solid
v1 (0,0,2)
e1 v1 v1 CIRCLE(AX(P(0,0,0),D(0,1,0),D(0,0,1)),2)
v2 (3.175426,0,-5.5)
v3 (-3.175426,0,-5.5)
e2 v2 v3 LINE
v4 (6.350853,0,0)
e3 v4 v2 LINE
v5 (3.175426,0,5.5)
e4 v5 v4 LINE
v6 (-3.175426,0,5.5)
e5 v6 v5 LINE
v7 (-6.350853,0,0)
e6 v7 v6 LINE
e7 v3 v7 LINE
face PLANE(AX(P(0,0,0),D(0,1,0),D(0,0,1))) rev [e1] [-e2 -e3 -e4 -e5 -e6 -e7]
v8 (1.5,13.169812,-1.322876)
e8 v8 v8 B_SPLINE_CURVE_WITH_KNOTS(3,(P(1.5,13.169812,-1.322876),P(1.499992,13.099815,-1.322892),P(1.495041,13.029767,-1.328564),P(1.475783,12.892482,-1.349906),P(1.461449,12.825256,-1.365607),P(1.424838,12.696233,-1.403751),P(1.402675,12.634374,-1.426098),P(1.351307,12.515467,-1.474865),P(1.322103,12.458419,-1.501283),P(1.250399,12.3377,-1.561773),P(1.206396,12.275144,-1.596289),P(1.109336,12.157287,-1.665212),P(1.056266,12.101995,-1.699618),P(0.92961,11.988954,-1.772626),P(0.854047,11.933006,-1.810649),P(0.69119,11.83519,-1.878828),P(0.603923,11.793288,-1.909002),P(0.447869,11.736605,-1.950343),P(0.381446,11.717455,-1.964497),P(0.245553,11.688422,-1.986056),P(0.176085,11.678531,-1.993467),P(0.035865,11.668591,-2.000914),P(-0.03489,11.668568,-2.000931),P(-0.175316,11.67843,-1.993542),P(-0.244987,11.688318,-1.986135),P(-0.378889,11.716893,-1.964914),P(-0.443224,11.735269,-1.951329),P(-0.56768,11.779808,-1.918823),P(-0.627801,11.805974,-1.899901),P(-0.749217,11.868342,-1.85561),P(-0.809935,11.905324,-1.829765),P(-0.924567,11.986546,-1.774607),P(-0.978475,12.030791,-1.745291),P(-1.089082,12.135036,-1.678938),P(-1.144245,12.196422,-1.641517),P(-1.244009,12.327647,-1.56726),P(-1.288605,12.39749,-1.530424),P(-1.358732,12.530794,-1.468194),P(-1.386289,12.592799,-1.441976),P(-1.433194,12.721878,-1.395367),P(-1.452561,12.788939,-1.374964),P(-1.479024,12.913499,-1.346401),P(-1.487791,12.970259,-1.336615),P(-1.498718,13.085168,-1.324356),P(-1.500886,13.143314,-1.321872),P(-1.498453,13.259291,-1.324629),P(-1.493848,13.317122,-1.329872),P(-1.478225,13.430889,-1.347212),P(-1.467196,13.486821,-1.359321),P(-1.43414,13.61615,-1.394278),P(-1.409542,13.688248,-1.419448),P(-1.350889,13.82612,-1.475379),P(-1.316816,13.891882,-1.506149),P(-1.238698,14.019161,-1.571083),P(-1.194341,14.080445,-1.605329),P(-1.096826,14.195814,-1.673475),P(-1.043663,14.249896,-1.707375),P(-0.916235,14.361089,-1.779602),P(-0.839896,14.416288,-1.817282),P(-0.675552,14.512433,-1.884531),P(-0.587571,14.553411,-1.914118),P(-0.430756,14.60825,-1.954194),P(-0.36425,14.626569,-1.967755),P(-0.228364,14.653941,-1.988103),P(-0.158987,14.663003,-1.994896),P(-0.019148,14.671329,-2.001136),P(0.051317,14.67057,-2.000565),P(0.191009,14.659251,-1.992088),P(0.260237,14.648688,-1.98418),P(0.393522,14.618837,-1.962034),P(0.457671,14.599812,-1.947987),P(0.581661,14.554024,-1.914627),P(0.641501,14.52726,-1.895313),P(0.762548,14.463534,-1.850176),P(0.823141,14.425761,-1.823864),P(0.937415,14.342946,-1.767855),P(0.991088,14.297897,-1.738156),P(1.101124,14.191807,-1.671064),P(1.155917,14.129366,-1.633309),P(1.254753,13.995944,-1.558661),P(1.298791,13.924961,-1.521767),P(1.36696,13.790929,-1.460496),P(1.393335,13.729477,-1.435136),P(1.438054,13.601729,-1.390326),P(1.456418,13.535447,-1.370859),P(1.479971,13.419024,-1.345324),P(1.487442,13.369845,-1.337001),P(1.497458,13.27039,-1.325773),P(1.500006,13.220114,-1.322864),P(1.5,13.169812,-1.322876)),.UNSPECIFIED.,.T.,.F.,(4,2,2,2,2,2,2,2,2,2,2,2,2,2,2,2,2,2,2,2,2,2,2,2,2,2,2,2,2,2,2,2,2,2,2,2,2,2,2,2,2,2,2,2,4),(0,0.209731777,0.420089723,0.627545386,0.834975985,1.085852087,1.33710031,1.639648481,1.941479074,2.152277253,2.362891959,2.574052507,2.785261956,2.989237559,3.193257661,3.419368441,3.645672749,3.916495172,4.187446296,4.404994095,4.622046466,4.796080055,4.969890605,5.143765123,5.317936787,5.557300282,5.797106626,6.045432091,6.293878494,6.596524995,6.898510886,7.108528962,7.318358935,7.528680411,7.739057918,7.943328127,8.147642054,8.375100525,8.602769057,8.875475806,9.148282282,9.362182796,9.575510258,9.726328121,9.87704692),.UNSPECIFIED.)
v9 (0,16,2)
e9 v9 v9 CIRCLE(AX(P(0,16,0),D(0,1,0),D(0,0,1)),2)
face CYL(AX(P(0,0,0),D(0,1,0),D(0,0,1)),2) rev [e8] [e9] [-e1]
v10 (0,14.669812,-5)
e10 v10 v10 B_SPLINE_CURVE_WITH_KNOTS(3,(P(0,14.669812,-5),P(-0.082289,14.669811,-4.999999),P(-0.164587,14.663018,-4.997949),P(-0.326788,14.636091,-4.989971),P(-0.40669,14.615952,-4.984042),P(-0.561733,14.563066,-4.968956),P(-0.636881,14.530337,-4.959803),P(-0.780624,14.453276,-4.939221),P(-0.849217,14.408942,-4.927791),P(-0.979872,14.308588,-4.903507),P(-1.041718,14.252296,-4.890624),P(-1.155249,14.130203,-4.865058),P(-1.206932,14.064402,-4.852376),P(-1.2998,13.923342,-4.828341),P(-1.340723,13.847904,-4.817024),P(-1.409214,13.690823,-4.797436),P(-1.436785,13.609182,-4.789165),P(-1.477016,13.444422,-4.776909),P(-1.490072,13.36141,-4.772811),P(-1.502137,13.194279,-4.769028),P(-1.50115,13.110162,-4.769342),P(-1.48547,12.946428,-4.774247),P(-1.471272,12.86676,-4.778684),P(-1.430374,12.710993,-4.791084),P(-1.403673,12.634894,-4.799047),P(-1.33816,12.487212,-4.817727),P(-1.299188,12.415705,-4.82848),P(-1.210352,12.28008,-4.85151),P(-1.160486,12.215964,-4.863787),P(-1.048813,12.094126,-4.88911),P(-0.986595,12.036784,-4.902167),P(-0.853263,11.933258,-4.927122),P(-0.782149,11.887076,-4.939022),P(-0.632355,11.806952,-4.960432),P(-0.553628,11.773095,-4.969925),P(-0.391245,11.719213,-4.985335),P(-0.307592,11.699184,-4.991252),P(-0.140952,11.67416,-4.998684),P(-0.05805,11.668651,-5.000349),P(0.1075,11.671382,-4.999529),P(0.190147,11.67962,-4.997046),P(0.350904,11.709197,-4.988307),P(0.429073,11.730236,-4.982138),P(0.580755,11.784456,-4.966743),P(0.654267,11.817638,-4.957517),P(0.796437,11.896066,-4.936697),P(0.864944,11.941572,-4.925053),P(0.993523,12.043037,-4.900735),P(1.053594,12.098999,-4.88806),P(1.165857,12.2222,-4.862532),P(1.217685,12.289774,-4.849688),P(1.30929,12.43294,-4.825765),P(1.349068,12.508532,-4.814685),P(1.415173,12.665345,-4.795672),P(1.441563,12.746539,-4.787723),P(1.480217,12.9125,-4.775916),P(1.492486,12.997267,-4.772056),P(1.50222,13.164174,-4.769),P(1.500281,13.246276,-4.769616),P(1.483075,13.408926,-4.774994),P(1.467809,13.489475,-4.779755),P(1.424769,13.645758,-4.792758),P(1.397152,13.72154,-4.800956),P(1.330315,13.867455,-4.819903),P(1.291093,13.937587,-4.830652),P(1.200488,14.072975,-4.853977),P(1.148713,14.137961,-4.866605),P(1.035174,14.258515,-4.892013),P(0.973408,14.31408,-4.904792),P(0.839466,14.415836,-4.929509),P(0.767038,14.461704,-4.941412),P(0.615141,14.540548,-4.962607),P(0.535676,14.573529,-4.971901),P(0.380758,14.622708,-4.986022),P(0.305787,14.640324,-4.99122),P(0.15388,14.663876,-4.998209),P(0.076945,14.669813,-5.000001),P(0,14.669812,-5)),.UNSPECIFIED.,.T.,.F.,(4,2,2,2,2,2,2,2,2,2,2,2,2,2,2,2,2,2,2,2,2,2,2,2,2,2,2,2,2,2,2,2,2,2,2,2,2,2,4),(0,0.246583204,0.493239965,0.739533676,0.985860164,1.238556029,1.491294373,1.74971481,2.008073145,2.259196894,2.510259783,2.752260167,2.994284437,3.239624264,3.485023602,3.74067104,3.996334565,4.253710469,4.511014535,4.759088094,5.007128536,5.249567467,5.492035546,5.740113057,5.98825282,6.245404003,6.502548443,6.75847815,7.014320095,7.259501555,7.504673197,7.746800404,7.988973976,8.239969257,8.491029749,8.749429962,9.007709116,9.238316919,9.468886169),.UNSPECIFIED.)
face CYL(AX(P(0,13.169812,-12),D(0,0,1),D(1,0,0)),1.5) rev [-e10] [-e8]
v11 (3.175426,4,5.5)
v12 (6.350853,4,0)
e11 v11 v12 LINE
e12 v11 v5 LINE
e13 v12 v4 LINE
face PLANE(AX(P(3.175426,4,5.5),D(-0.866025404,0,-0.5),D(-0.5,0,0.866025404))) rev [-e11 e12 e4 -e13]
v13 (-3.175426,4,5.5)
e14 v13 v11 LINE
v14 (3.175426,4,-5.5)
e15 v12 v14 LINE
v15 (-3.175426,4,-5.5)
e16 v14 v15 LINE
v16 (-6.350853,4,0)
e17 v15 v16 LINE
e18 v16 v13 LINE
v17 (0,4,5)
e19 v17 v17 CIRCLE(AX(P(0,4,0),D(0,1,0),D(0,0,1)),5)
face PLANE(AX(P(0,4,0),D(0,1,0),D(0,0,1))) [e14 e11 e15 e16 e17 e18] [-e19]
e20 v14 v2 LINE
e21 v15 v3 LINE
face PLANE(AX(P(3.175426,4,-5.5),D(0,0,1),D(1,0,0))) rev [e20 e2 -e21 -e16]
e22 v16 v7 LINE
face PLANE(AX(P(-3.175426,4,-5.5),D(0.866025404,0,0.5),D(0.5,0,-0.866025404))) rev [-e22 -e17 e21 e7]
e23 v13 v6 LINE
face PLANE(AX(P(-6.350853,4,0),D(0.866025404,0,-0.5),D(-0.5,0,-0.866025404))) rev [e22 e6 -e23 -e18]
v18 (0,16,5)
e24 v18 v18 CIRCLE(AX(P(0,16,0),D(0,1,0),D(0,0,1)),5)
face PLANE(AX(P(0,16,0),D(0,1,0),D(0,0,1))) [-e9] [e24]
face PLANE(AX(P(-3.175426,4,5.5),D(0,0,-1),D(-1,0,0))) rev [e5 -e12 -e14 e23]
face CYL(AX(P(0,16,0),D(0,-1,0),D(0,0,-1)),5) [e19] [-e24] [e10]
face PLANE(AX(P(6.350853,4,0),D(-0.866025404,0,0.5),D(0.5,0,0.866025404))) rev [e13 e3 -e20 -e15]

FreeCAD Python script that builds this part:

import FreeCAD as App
import Part
import Sketcher
from FreeCAD import Vector
Q = App.Units.Quantity

doc = App.newDocument("Part")
params = doc.addObject("Spreadsheet::Sheet", "Params")
for row, (alias, value) in enumerate([
    ("pad1_length", "4 mm"),
    ("sketch2_diameter", "10 mm"),
    ("pad2_length", "12 mm"),
    ("sketch3_diameter", "4 mm"),
    ("sketch4_diameter", "3 mm"),
    ("pocket2_length", "12 mm"),
], start=1):
    params.set(f"A{row}", alias)
    params.set(f"B{row}", "=" + value)
    params.setAlias(f"B{row}", alias)

body = doc.addObject("PartDesign::Body", "Body")

# Sketch on XZ plane
sketch1 = doc.addObject("Sketcher::SketchObject", "Sketch")
body.addObject(sketch1)
sketch1.AttachmentSupport = (doc.XZ_Plane, [""])
sketch1.MapMode = "FlatFace"
sketch1.addGeometry(Part.LineSegment(Vector(6, 0, 0), Vector(3, -6, 0)), False)
sketch1.addGeometry(Part.LineSegment(Vector(3, -6, 0), Vector(-3, -6, 0)), False)
sketch1.addGeometry(Part.LineSegment(Vector(-3, -6, 0), Vector(-6, 0, 0)), False)
sketch1.addGeometry(Part.LineSegment(Vector(-6, 0, 0), Vector(-3, 6, 0)), False)
sketch1.addGeometry(Part.LineSegment(Vector(-3, 6, 0), Vector(3, 6, 0)), False)
sketch1.addGeometry(Part.LineSegment(Vector(3, 6, 0), Vector(6, 0, 0)), False)
sketch1.addConstraint(Sketcher.Constraint("Coincident", 0, 2, 1, 1))
sketch1.addConstraint(Sketcher.Constraint("Coincident", 1, 2, 2, 1))
sketch1.addConstraint(Sketcher.Constraint("Coincident", 2, 2, 3, 1))
sketch1.addConstraint(Sketcher.Constraint("Coincident", 3, 2, 4, 1))
sketch1.addConstraint(Sketcher.Constraint("Coincident", 4, 2, 5, 1))
sketch1.addConstraint(Sketcher.Constraint("Coincident", 5, 2, 0, 1))
sketch1.addConstraint(Sketcher.Constraint("Horizontal", 1))
sketch1.addConstraint(Sketcher.Constraint("Horizontal", 4))
sketch1.addConstraint(Sketcher.Constraint("Symmetric", 0, 2, 3, 2, -1, 1))
sketch1.addConstraint(Sketcher.Constraint("Symmetric", 2, 2, 5, 2, -1, 1))
sketch1.addConstraint(Sketcher.Constraint("PointOnObject", 2, 2, -1))
sketch1.addConstraint(Sketcher.Constraint("Parallel", 2, 5))
sketch1.addConstraint(Sketcher.Constraint("Vertical", 1, 2, 3, 2))
sketch1.addConstraint(Sketcher.Constraint("Angle", 0, Q("-120 deg")))
sketch1.addConstraint(Sketcher.Constraint("DistanceY", 1, 2, 3, 2, Q("11 mm")))
sketch1.addConstraint(Sketcher.Constraint("DistanceX", 1, 2, 1, 1, Q("6.350853 mm")))
pad1 = doc.addObject("PartDesign::Pad", "Pad")
body.addObject(pad1)
pad1.Profile = sketch1
pad1.setExpression("Length", "Params.pad1_length")
pad1.Reversed = True

# Sketch on XZ plane
sketch2 = doc.addObject("Sketcher::SketchObject", "Sketch001")
body.addObject(sketch2)
sketch2.AttachmentSupport = (doc.XZ_Plane, [""])
sketch2.MapMode = "FlatFace"
sketch2.AttachmentOffset = App.Placement(Vector(0, 0, -4), App.Rotation())
sketch2.addGeometry(Part.Circle(Vector(0, 0, 0), Vector(0, 0, 1), 5), False)
sketch2.addConstraint(Sketcher.Constraint("Coincident", 0, 3, -1, 1))
sketch2.addConstraint(Sketcher.Constraint("Diameter", 0, Q("10 mm")))
sketch2.setExpression("Constraints[1]", "Params.sketch2_diameter")
pad2 = doc.addObject("PartDesign::Pad", "Pad001")
body.addObject(pad2)
pad2.Profile = sketch2
pad2.setExpression("Length", "Params.pad2_length")
pad2.Reversed = True

# Sketch on XZ plane
sketch3 = doc.addObject("Sketcher::SketchObject", "Sketch002")
body.addObject(sketch3)
sketch3.AttachmentSupport = (doc.XZ_Plane, [""])
sketch3.MapMode = "FlatFace"
sketch3.AttachmentOffset = App.Placement(Vector(0, 0, -16), App.Rotation())
sketch3.addGeometry(Part.Circle(Vector(0, 0, 0), Vector(0, 0, 1), 2), False)
sketch3.addConstraint(Sketcher.Constraint("Coincident", 0, 3, -1, 1))
sketch3.addConstraint(Sketcher.Constraint("Diameter", 0, Q("4 mm")))
sketch3.setExpression("Constraints[1]", "Params.sketch3_diameter")
pocket1 = doc.addObject("PartDesign::Pocket", "Pocket")
body.addObject(pocket1)
pocket1.Profile = sketch3
pocket1.Type = "ThroughAll"
pocket1.Midplane = True

# Sketch on XY plane
sketch4 = doc.addObject("Sketcher::SketchObject", "Sketch003")
body.addObject(sketch4)
sketch4.AttachmentSupport = (doc.XY_Plane, [""])
sketch4.MapMode = "FlatFace"
sketch4.addGeometry(Part.Circle(Vector(0, 13.2, 0), Vector(0, 0, 1), 1.5), False)
sketch4.addConstraint(Sketcher.Constraint("PointOnObject", 0, 3, -2))
sketch4.addConstraint(Sketcher.Constraint("Diameter", 0, Q("3 mm")))
sketch4.addConstraint(Sketcher.Constraint("DistanceY", -1, 1, 0, 3, Q("13.169812 mm")))
sketch4.setExpression("Constraints[1]", "Params.sketch4_diameter")
pocket2 = doc.addObject("PartDesign::Pocket", "Pocket001")
body.addObject(pocket2)
pocket2.Profile = sketch4
pocket2.setExpression("Length", "Params.pocket2_length")

doc.recompute()
